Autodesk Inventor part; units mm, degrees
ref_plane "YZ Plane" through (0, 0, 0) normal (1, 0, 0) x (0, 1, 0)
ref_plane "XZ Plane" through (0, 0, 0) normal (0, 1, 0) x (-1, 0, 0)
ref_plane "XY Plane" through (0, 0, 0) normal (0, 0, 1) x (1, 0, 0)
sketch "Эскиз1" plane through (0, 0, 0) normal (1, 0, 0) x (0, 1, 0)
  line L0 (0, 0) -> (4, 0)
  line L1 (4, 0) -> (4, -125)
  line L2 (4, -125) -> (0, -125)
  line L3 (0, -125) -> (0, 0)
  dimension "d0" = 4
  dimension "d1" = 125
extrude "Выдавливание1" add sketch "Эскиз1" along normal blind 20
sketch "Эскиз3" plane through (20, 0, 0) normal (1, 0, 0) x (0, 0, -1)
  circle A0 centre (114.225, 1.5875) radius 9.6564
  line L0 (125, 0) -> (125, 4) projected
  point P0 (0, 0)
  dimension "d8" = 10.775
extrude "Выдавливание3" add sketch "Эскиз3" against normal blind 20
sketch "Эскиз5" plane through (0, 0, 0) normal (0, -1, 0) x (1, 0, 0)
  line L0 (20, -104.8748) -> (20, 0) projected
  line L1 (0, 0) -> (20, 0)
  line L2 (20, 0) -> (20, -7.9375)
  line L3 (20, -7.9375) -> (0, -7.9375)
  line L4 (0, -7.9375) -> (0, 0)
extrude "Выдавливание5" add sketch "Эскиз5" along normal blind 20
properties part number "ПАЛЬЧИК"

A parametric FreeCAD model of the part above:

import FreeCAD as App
import Part
import Sketcher


def add_polygon(sketch, points):
    """Adds a closed chain of lines whose ends are joined by coincident constraints."""
    first, n = sketch.GeometryCount, len(points)
    for a, b in zip(points, points[1:] + points[:1]):
        sketch.addGeometry(Part.LineSegment(App.Vector(*a, 0), App.Vector(*b, 0)), False)
    for i in range(n):
        sketch.addConstraint(Sketcher.Constraint("Coincident", first + i, 2, first + (i + 1) % n, 1))

doc = App.newDocument("Part")
body = doc.addObject("PartDesign::Body", "Body")

# Sketch on YZ plane
sketch1 = body.newObject("Sketcher::SketchObject", "Sketch")
sketch1.AttachmentSupport = (doc.getObject("YZ_Plane"), [""])
sketch1.MapMode = "FlatFace"
add_polygon(sketch1, [(4, 0), (0, 0), (0, -125), (4, -125)])  # lines 0-3
sketch1.addConstraint([
    Sketcher.Constraint("Horizontal", 0),
    Sketcher.Constraint("Vertical", 1),
    Sketcher.Constraint("Horizontal", 2),
    Sketcher.Constraint("Vertical", 3),
    Sketcher.Constraint("Coincident", 0, 2, -1, 1),
    Sketcher.Constraint("DistanceX", 0, 2, 0, 1, 4.0),
    Sketcher.Constraint("DistanceY", 1, 2, 1, 1, 125.0),
])
pad1 = body.newObject("PartDesign::Pad", "Pad")
pad1.Profile = sketch1
pad1.Length = 20

# Sketch on YZ plane
sketch2 = body.newObject("Sketcher::SketchObject", "Sketch001")
sketch2.AttachmentSupport = (doc.getObject("YZ_Plane"), [""])
sketch2.MapMode = "FlatFace"
sketch2.AttachmentOffset = App.Placement(App.Vector(0, 0, 20), App.Rotation())
sketch2.addGeometry(Part.Circle(App.Vector(2, -114, 0), App.Vector(0, 0, 1), 10), False)
sketch2.addConstraint([
    Sketcher.Constraint("Diameter", 0, 19.3128),
    Sketcher.Constraint("DistanceY", 0, 3, -1, 1, 114.225),
    Sketcher.Constraint("DistanceX", -1, 1, 0, 3, 1.5875),
])
pad2 = body.newObject("PartDesign::Pad", "Pad001")
pad2.Profile = sketch2
pad2.Length = 20
pad2.Reversed = True

# Sketch on XZ plane
sketch3 = body.newObject("Sketcher::SketchObject", "Sketch002")
sketch3.AttachmentSupport = (doc.getObject("XZ_Plane"), [""])
sketch3.MapMode = "FlatFace"
add_polygon(sketch3, [(0, -8), (20, -8), (20, 0), (0, 0)])  # lines 0-3
sketch3.addConstraint([
    Sketcher.Constraint("Horizontal", 0),
    Sketcher.Constraint("Vertical", 1),
    Sketcher.Constraint("Horizontal", 2),
    Sketcher.Constraint("Vertical", 3),
    Sketcher.Constraint("Coincident", 2, 2, -1, 1),
    Sketcher.Constraint("DistanceX", 0, 1, 0, 2, 20.0),
    Sketcher.Constraint("DistanceY", 1, 1, 1, 2, 7.9375),
])
pad3 = body.newObject("PartDesign::Pad", "Pad002")
pad3.Profile = sketch3
pad3.Length = 20

doc.recompute()
